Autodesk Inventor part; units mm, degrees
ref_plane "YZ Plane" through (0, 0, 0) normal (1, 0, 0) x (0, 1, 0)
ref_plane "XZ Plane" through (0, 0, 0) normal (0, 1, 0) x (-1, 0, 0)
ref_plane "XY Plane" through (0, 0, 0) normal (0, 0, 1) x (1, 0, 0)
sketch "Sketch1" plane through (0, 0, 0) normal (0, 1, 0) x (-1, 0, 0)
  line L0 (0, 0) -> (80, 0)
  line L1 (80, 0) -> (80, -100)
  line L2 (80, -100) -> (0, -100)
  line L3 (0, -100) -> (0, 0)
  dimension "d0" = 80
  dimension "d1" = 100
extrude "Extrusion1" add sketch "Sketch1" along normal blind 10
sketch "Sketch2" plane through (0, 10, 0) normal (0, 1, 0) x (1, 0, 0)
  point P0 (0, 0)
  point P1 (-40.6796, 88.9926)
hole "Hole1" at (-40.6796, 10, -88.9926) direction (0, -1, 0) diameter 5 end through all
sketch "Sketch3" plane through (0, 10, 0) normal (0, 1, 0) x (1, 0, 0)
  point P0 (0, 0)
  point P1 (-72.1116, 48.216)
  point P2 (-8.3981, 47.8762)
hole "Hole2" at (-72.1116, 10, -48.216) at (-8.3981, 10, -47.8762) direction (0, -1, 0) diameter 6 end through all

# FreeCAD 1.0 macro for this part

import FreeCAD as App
import Part
import Sketcher
Q = App.Units.Quantity

doc = App.newDocument("Part")
body = doc.addObject("PartDesign::Body", "Body")

# Sketch on XZ plane
sketch1 = body.newObject("Sketcher::SketchObject", "Sketch")
sketch1.AttachmentSupport = (doc.getObject("XZ_Plane"), [""])
sketch1.MapMode = "FlatFace"
sketch1.addGeometry([
    Part.LineSegment(App.Vector(-80, 0, 0), App.Vector(0, 0, 0)),
    Part.LineSegment(App.Vector(0, 0, 0), App.Vector(0, -100, 0)),
    Part.LineSegment(App.Vector(0, -100, 0), App.Vector(-80, -100, 0)),
    Part.LineSegment(App.Vector(-80, -100, 0), App.Vector(-80, 0, 0)),
], False)
sketch1.addConstraint([
    Sketcher.Constraint("Coincident", 0, 2, 1, 1),
    Sketcher.Constraint("Coincident", 1, 2, 2, 1),
    Sketcher.Constraint("Coincident", 2, 2, 3, 1),
    Sketcher.Constraint("Coincident", 3, 2, 0, 1),
    Sketcher.Constraint("Horizontal", 0),
    Sketcher.Constraint("Vertical", 1),
    Sketcher.Constraint("Horizontal", 2),
    Sketcher.Constraint("Vertical", 3),
    Sketcher.Constraint("Coincident", 0, 2, -1, 1),
    Sketcher.Constraint("DistanceX", 0, 1, 0, 2, Q("80 mm")),
    Sketcher.Constraint("DistanceY", 1, 2, 1, 1, Q("100 mm")),
])
pad1 = body.newObject("PartDesign::Pad", "Pad")
pad1.Profile = sketch1
pad1.Length = 10
pad1.Reversed = True

# Sketch on XZ plane
sketch2 = body.newObject("Sketcher::SketchObject", "Sketch001")
sketch2.AttachmentSupport = (doc.getObject("XZ_Plane"), [""])
sketch2.MapMode = "FlatFace"
sketch2.AttachmentOffset = App.Placement(App.Vector(0, 0, -10), App.Rotation())
sketch2.addGeometry(Part.Circle(App.Vector(-40.7, -89, 0), App.Vector(0, 0, 1), 2.5), False)
sketch2.addConstraint([
    Sketcher.Constraint("Diameter", 0, Q("5 mm")),
    Sketcher.Constraint("DistanceX", 0, 3, -1, 1, Q("40.6796 mm")),
    Sketcher.Constraint("DistanceY", 0, 3, -1, 1, Q("88.9926 mm")),
])
doc.recompute()
hole = body.newObject("PartDesign::Hole", "Hole")
hole.Profile = sketch2
hole.ThreadType = "None"
hole.Diameter = 5
hole.DepthType = "ThroughAll"
hole.Reversed = True

# Sketch on XZ plane
sketch3 = body.newObject("Sketcher::SketchObject", "Sketch002")
sketch3.AttachmentSupport = (doc.getObject("XZ_Plane"), [""])
sketch3.MapMode = "FlatFace"
sketch3.AttachmentOffset = App.Placement(App.Vector(0, 0, -10), App.Rotation())
sketch3.addGeometry([
    Part.Circle(App.Vector(-72.1, -48.2, 0), App.Vector(0, 0, 1), 3),
    Part.Circle(App.Vector(-8.4, -47.9, 0), App.Vector(0, 0, 1), 3),
], False)
sketch3.addConstraint([
    Sketcher.Constraint("Equal", 0, 1),
    Sketcher.Constraint("Diameter", 0, Q("6 mm")),
    Sketcher.Constraint("DistanceY", 0, 3, -1, 1, Q("48.216 mm")),
    Sketcher.Constraint("DistanceX", 1, 3, -1, 1, Q("8.398 mm")),
    Sketcher.Constraint("DistanceX", 0, 3, -1, 1, Q("72.1116 mm")),
    Sketcher.Constraint("DistanceY", 1, 3, -1, 1, Q("47.8762 mm")),
])
doc.recompute()
hole2 = body.newObject("PartDesign::Hole", "Hole001")
hole2.Profile = sketch3
hole2.ThreadType = "None"
hole2.Diameter = 6
hole2.DepthType = "ThroughAll"
hole2.Reversed = True

doc.recompute()
